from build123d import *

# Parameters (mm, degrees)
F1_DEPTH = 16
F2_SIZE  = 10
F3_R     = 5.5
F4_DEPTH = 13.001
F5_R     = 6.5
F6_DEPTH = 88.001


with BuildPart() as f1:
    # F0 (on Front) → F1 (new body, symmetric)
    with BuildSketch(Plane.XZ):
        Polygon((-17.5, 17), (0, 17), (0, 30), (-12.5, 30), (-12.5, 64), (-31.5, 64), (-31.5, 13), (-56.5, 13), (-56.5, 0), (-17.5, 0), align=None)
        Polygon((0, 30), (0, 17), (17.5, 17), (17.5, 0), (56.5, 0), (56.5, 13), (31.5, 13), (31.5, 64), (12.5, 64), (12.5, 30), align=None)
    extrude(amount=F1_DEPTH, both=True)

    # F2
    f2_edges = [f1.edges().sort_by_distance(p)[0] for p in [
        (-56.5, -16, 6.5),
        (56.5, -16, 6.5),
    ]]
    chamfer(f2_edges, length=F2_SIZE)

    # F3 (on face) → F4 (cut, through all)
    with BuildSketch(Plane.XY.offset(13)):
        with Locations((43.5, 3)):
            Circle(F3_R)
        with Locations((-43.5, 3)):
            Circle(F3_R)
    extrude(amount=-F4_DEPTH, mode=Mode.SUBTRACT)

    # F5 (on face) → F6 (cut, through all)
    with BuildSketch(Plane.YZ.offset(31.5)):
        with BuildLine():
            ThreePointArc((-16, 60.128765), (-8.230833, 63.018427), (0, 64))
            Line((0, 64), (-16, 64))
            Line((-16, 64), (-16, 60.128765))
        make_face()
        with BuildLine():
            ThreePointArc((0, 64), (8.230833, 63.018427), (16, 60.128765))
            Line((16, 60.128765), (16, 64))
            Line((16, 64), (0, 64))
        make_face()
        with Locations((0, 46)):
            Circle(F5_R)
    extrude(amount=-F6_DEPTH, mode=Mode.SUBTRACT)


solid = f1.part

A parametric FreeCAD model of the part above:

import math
import FreeCAD as App
import Part
import Sketcher
from FreeCAD import Vector


def edges_at(feature, points):
    """Names of the edges that pass closest to the given points."""
    edges = feature.Shape.Edges
    near = lambda p: min(range(len(edges)), key=lambda i: edges[i].distToShape(Part.Vertex(*p))[0])
    return sorted({f"Edge{near(p) + 1}" for p in points})

doc = App.newDocument("Part")
body = doc.addObject("PartDesign::Body", "Body")

# Sketch on XZ plane
sketch1 = body.newObject("Sketcher::SketchObject", "Sketch")
sketch1.AttachmentSupport = (doc.getObject("XZ_Plane"), [""])
sketch1.MapMode = "FlatFace"
sketch1.addGeometry([
    Part.LineSegment(Vector(-18, 17, 0), Vector(18, 17, 0)),  # 0
    Part.LineSegment(Vector(18, 17, 0), Vector(18, 0, 0)),  # 1
    Part.LineSegment(Vector(18, 0, 0), Vector(56, 0, 0)),  # 2
    Part.LineSegment(Vector(56, 0, 0), Vector(56, 13, 0)),  # 3
    Part.LineSegment(Vector(56, 13, 0), Vector(32, 13, 0)),  # 4
    Part.LineSegment(Vector(32, 13, 0), Vector(32, 64, 0)),  # 5
    Part.LineSegment(Vector(32, 64, 0), Vector(12, 64, 0)),  # 6
    Part.LineSegment(Vector(12, 64, 0), Vector(12, 30, 0)),  # 7
    Part.LineSegment(Vector(12, 30, 0), Vector(-12, 30, 0)),  # 8
    Part.LineSegment(Vector(-12, 30, 0), Vector(-12, 64, 0)),  # 9
    Part.LineSegment(Vector(-12, 64, 0), Vector(-32, 64, 0)),  # 10
    Part.LineSegment(Vector(-32, 64, 0), Vector(-32, 13, 0)),  # 11
    Part.LineSegment(Vector(-32, 13, 0), Vector(-56, 13, 0)),  # 12
    Part.LineSegment(Vector(-56, 13, 0), Vector(-56, 0, 0)),  # 13
    Part.LineSegment(Vector(-56, 0, 0), Vector(-18, 0, 0)),  # 14
    Part.LineSegment(Vector(-18, 0, 0), Vector(-18, 17, 0)),  # 15
], False)
sketch1.addConstraint([
    Sketcher.Constraint("Coincident", 0, 2, 1, 1),
    Sketcher.Constraint("Coincident", 1, 2, 2, 1),
    Sketcher.Constraint("Coincident", 2, 2, 3, 1),
    Sketcher.Constraint("Coincident", 3, 2, 4, 1),
    Sketcher.Constraint("Coincident", 4, 2, 5, 1),
    Sketcher.Constraint("Coincident", 5, 2, 6, 1),
    Sketcher.Constraint("Coincident", 6, 2, 7, 1),
    Sketcher.Constraint("Coincident", 7, 2, 8, 1),
    Sketcher.Constraint("Coincident", 8, 2, 9, 1),
    Sketcher.Constraint("Coincident", 9, 2, 10, 1),
    Sketcher.Constraint("Coincident", 10, 2, 11, 1),
    Sketcher.Constraint("Coincident", 11, 2, 12, 1),
    Sketcher.Constraint("Coincident", 12, 2, 13, 1),
    Sketcher.Constraint("Coincident", 13, 2, 14, 1),
    Sketcher.Constraint("Coincident", 14, 2, 15, 1),
    Sketcher.Constraint("Coincident", 15, 2, 0, 1),
    Sketcher.Constraint("Horizontal", 0),
    Sketcher.Constraint("Vertical", 1),
    Sketcher.Constraint("Horizontal", 2),
    Sketcher.Constraint("Vertical", 3),
    Sketcher.Constraint("Horizontal", 4),
    Sketcher.Constraint("Vertical", 5),
    Sketcher.Constraint("Horizontal", 6),
    Sketcher.Constraint("Vertical", 7),
    Sketcher.Constraint("Horizontal", 8),
    Sketcher.Constraint("Vertical", 9),
    Sketcher.Constraint("Horizontal", 10),
    Sketcher.Constraint("Vertical", 11),
    Sketcher.Constraint("Horizontal", 12),
    Sketcher.Constraint("Vertical", 13),
    Sketcher.Constraint("Horizontal", 14),
    Sketcher.Constraint("Vertical", 15),
    Sketcher.Constraint("Symmetric", 2, 2, 13, 2, -1, 1),
    Sketcher.Constraint("Symmetric", 6, 2, 9, 2, -2),
    Sketcher.Constraint("Symmetric", 4, 2, 11, 2, -2),
    Sketcher.Constraint("Symmetric", 1, 2, 14, 2, -2),
    Sketcher.Constraint("Equal", 4, 8),
    Sketcher.Constraint("DistanceX", 0, 1, 0, 2, 35.0),
    Sketcher.Constraint("DistanceX", 2, 1, 2, 2, 39.0),
    Sketcher.Constraint("DistanceX", 4, 2, 4, 1, 25.0),
    Sketcher.Constraint("DistanceY", 1, 2, 1, 1, 17.0),
    Sketcher.Constraint("DistanceY", 3, 1, 3, 2, 13.0),
    Sketcher.Constraint("DistanceY", 5, 1, 5, 2, 51.0),
    Sketcher.Constraint("DistanceY", 7, 2, 7, 1, 34.0),
])
pad1 = body.newObject("PartDesign::Pad", "Pad")
pad1.Profile = sketch1
pad1.Length = 32
pad1.Midplane = True
doc.recompute()

chamfer = body.newObject("PartDesign::Chamfer", "Chamfer")
chamfer.Base = (pad1, edges_at(pad1, [(-56.5, -16, 6.5), (56.5, -16, 6.5)]))
chamfer.Size = 10

# Sketch on XY plane
sketch2 = body.newObject("Sketcher::SketchObject", "Sketch001")
sketch2.AttachmentSupport = (doc.getObject("XY_Plane"), [""])
sketch2.MapMode = "FlatFace"
sketch2.AttachmentOffset = App.Placement(Vector(0, 0, 13), App.Rotation())
sketch2.addGeometry([
    Part.Circle(Vector(44, 3, 0), Vector(0, 0, 1), 6),
    Part.Circle(Vector(-44, 3, 0), Vector(0, 0, 1), 6),
], False)
sketch2.addConstraint([
    Sketcher.Constraint("Equal", 0, 1),
    Sketcher.Constraint("Symmetric", 0, 3, 1, 3, -2),
    Sketcher.Constraint("Diameter", 0, 11.0),
    Sketcher.Constraint("DistanceY", -1, 1, 0, 3, 3.0),
    Sketcher.Constraint("DistanceX", 1, 3, 0, 3, 87.0),
])
pocket1 = body.newObject("PartDesign::Pocket", "Pocket")
pocket1.Profile = sketch2
pocket1.Type = "ThroughAll"

# Sketch on YZ plane
sketch3 = body.newObject("Sketcher::SketchObject", "Sketch002")
sketch3.AttachmentSupport = (doc.getObject("YZ_Plane"), [""])
sketch3.MapMode = "FlatFace"
sketch3.AttachmentOffset = App.Placement(Vector(0, 0, 31.5), App.Rotation())
sketch3.addGeometry([
    Part.ArcOfCircle(Part.Circle(Vector(0, 29, 0), Vector(0, 0, 1), 35), math.radians(90), math.radians(117)),  # 0
    Part.LineSegment(Vector(0, 64, 0), Vector(-16, 64, 0)),  # 1
    Part.LineSegment(Vector(-16, 64, 0), Vector(-16, 60.1, 0)),  # 2
    Part.ArcOfCircle(Part.Circle(Vector(0, 29, 0), Vector(0, 0, 1), 35), math.radians(63), math.radians(90)),  # 3
    Part.LineSegment(Vector(16, 60.1, 0), Vector(16, 64, 0)),  # 4
    Part.LineSegment(Vector(16, 64, 0), Vector(0, 64, 0)),  # 5
    Part.Circle(Vector(0, 46, 0), Vector(0, 0, 1), 6.5),  # 6
], False)
sketch3.addConstraint([
    Sketcher.Constraint("Tangent", 0, 1, 1, 1),
    Sketcher.Constraint("Coincident", 1, 2, 2, 1),
    Sketcher.Constraint("Coincident", 2, 2, 0, 2),
    Sketcher.Constraint("Coincident", 3, 1, 4, 1),
    Sketcher.Constraint("Coincident", 4, 2, 5, 1),
    Sketcher.Constraint("Tangent", 5, 2, 3, 2),
    Sketcher.Constraint("Horizontal", 1),
    Sketcher.Constraint("Vertical", 2),
    Sketcher.Constraint("Vertical", 4),
    Sketcher.Constraint("Horizontal", 5),
    Sketcher.Constraint("Coincident", 3, 3, 0, 3),
    Sketcher.Constraint("Equal", 0, 3),
    Sketcher.Constraint("Symmetric", 2, 2, 3, 1, -2),
    Sketcher.Constraint("PointOnObject", 6, 3, -2),
    Sketcher.Constraint("Diameter", 6, 13.0),
    Sketcher.Constraint("DistanceX", 1, 2, 1, 1, 16.0),
    Sketcher.Constraint("DistanceY", -1, 1, 6, 3, 46.0),
    Sketcher.Constraint("DistanceY", -1, 1, 0, 1, 64.0),
    Sketcher.Constraint("Radius", 0, 35.000009),
])
pocket2 = body.newObject("PartDesign::Pocket", "Pocket001")
pocket2.Profile = sketch3
pocket2.Type = "ThroughAll"

doc.recompute()
